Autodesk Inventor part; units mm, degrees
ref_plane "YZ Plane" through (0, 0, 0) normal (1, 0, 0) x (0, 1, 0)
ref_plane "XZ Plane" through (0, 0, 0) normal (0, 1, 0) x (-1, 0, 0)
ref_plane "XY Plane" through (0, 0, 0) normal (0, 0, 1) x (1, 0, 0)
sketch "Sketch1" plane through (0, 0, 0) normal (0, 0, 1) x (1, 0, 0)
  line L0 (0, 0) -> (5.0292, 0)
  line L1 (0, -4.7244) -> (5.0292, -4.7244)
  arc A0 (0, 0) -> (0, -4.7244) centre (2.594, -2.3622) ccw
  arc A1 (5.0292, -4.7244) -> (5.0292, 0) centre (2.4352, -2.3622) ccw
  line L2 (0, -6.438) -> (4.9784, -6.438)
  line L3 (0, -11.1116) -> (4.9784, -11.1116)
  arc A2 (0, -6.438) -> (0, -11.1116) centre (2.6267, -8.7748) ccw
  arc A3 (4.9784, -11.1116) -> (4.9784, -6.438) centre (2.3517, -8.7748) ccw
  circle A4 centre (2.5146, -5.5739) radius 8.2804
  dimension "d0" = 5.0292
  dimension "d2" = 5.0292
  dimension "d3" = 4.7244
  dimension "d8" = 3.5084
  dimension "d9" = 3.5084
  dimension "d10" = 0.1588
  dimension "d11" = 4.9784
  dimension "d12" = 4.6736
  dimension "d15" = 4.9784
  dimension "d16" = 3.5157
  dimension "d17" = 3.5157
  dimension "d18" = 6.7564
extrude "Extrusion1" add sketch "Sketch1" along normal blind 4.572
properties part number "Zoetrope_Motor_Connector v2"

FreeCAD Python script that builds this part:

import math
import FreeCAD as App
import Part
import Sketcher
Q = App.Units.Quantity

doc = App.newDocument("Part")
body = doc.addObject("PartDesign::Body", "Body")

# Sketch on XY plane
sketch1 = body.newObject("Sketcher::SketchObject", "Sketch")
sketch1.AttachmentSupport = (doc.getObject("XY_Plane"), [""])
sketch1.MapMode = "FlatFace"
sketch1.addGeometry(Part.Circle(App.Vector(2.5, -5.6, 0), App.Vector(0, 0, 1), 8.3), False)
sketch1.addGeometry(Part.ArcOfCircle(Part.Circle(App.Vector(2.6, -8.8, 0), App.Vector(0, 0, 1), 3.5), math.radians(138), math.radians(222)), False)
sketch1.addGeometry(Part.LineSegment(App.Vector(0, -6.4, 0), App.Vector(5, -6.4, 0)), False)
sketch1.addGeometry(Part.ArcOfCircle(Part.Circle(App.Vector(2.4, -8.8, 0), App.Vector(0, 0, 1), 3.5), math.radians(-42), math.radians(42)), False)
sketch1.addGeometry(Part.LineSegment(App.Vector(5, -11.1, 0), App.Vector(0, -11.1, 0)), False)
sketch1.addGeometry(Part.ArcOfCircle(Part.Circle(App.Vector(2.6, -2.4, 0), App.Vector(0, 0, 1), 3.5), math.radians(138), math.radians(222)), False)
sketch1.addGeometry(Part.LineSegment(App.Vector(0, 0, 0), App.Vector(5, 0, 0)), False)
sketch1.addGeometry(Part.ArcOfCircle(Part.Circle(App.Vector(2.4, -2.4, 0), App.Vector(0, 0, 1), 3.5), math.radians(-42), math.radians(42)), False)
sketch1.addGeometry(Part.LineSegment(App.Vector(5, -4.7, 0), App.Vector(0, -4.7, 0)), False)
sketch1.addConstraint(Sketcher.Constraint("Coincident", 1, 1, 2, 1))
sketch1.addConstraint(Sketcher.Constraint("Coincident", 2, 2, 3, 2))
sketch1.addConstraint(Sketcher.Constraint("Coincident", 3, 1, 4, 1))
sketch1.addConstraint(Sketcher.Constraint("Coincident", 4, 2, 1, 2))
sketch1.addConstraint(Sketcher.Constraint("Coincident", 5, 1, 6, 1))
sketch1.addConstraint(Sketcher.Constraint("Coincident", 6, 2, 7, 2))
sketch1.addConstraint(Sketcher.Constraint("Coincident", 7, 1, 8, 1))
sketch1.addConstraint(Sketcher.Constraint("Coincident", 8, 2, 5, 2))
sketch1.addConstraint(Sketcher.Constraint("Horizontal", 2))
sketch1.addConstraint(Sketcher.Constraint("Horizontal", 4))
sketch1.addConstraint(Sketcher.Constraint("Horizontal", 6))
sketch1.addConstraint(Sketcher.Constraint("Horizontal", 8))
sketch1.addConstraint(Sketcher.Constraint("Coincident", 5, 1, -1, 1))
sketch1.addConstraint(Sketcher.Constraint("Equal", 1, 3))
sketch1.addConstraint(Sketcher.Constraint("Equal", 5, 7))
sketch1.addConstraint(Sketcher.Constraint("PointOnObject", 1, 1, -2))
sketch1.addConstraint(Sketcher.Constraint("PointOnObject", 4, 2, -2))
sketch1.addConstraint(Sketcher.Constraint("PointOnObject", 8, 2, -2))
sketch1.addConstraint(Sketcher.Constraint("Horizontal", 1, 3, 3, 3))
sketch1.addConstraint(Sketcher.Constraint("Horizontal", 5, 3, 7, 3))
sketch1.addConstraint(Sketcher.Constraint("DistanceX", 2, 1, 2, 2, Q("0.196 in")))
sketch1.addConstraint(Sketcher.Constraint("DistanceX", 6, 1, 6, 2, Q("0.198 in")))
sketch1.addConstraint(Sketcher.Constraint("Radius", 1, 3.5157))
sketch1.addConstraint(Sketcher.Constraint("Radius", 5, 3.5084))
sketch1.addConstraint(Sketcher.Constraint("Diameter", 0, Q("0.652 in")))
sketch1.addConstraint(Sketcher.Constraint("DistanceY", 7, 1, -1, 1, Q("0.186 in")))
sketch1.addConstraint(Sketcher.Constraint("DistanceY", 3, 1, 2, 2, Q("0.184 in")))
sketch1.addConstraint(Sketcher.Constraint("DistanceX", -1, 1, 0, 3, Q("0.099 in")))
sketch1.addConstraint(Sketcher.Constraint("DistanceY", 0, 3, -1, 1, 5.574))
sketch1.addConstraint(Sketcher.Constraint("DistanceY", 1, 3, -1, 1, 8.7748))
pad1 = body.newObject("PartDesign::Pad", "Pad")
pad1.Profile = sketch1
pad1.Length = Q("0.18 in")

doc.recompute()
